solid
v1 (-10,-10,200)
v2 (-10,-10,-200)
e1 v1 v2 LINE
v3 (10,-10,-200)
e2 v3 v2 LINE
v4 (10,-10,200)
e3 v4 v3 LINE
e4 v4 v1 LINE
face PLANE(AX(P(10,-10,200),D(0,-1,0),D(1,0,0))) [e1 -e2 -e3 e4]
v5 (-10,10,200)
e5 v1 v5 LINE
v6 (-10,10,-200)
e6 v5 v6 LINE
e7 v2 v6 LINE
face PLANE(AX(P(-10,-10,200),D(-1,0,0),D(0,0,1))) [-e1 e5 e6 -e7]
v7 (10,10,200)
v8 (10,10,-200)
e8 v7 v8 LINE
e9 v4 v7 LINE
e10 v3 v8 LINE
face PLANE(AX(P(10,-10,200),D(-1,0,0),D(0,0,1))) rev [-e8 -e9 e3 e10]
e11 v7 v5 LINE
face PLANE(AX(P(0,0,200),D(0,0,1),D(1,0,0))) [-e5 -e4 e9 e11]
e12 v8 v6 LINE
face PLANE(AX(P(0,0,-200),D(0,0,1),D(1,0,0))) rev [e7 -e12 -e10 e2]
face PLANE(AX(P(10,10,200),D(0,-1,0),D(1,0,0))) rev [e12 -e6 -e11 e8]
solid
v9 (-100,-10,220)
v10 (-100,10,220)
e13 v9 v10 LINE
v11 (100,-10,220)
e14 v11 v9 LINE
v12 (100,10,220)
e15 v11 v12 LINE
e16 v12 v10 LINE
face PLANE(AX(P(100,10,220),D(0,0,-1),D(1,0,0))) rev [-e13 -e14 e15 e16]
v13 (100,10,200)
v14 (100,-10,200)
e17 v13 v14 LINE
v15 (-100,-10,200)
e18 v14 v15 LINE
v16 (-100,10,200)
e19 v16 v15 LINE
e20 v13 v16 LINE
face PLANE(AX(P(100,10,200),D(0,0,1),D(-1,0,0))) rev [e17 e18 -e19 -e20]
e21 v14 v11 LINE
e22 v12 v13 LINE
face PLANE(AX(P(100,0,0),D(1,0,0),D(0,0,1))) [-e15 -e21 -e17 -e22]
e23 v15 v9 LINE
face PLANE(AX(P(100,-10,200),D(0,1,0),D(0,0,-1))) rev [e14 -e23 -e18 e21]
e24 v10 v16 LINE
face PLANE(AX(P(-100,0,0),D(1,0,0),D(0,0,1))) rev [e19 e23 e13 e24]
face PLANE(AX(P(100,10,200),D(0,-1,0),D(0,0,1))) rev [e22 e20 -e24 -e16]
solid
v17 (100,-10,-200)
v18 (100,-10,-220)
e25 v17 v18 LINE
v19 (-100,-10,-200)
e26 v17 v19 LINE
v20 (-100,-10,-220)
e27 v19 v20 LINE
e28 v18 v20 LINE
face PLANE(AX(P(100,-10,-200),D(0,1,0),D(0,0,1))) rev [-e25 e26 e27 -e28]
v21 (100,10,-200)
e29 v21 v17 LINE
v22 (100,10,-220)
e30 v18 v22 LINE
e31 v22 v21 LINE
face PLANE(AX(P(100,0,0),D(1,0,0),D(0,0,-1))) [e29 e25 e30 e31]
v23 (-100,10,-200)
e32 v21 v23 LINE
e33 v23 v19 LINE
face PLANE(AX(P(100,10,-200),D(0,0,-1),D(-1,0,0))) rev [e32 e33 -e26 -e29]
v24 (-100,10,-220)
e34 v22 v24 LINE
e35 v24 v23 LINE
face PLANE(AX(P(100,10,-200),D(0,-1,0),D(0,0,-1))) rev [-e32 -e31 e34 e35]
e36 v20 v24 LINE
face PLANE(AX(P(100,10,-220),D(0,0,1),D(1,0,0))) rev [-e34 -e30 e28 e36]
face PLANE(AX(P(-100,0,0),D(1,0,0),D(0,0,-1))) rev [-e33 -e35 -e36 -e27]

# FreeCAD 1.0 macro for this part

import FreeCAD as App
import Part
import Sketcher
from FreeCAD import Vector
Q = App.Units.Quantity

doc = App.newDocument("Part")
body = doc.addObject("PartDesign::Body", "Body")

sketch1 = body.newObject("Sketcher::SketchObject", "Sketch")
sketch1.AttachmentSupport = (doc.getObject("XY_Plane"), [""])
sketch1.MapMode = "FlatFace"
sketch1.addGeometry(Part.LineSegment(Vector(-10, 10, 0), Vector(-10, -10, 0)), False)
sketch1.addGeometry(Part.LineSegment(Vector(-10, -10, 0), Vector(10, -10, 0)), False)
sketch1.addGeometry(Part.LineSegment(Vector(10, -10, 0), Vector(10, 10, 0)), False)
sketch1.addGeometry(Part.LineSegment(Vector(10, 10, 0), Vector(-10, 10, 0)), False)
sketch1.addConstraint(Sketcher.Constraint("Coincident", 0, 2, 1, 1))
sketch1.addConstraint(Sketcher.Constraint("Coincident", 1, 2, 2, 1))
sketch1.addConstraint(Sketcher.Constraint("Coincident", 2, 2, 3, 1))
sketch1.addConstraint(Sketcher.Constraint("Coincident", 3, 2, 0, 1))
sketch1.addConstraint(Sketcher.Constraint("Vertical", 0))
sketch1.addConstraint(Sketcher.Constraint("Horizontal", 1))
sketch1.addConstraint(Sketcher.Constraint("Vertical", 2))
sketch1.addConstraint(Sketcher.Constraint("Horizontal", 3))
sketch1.addConstraint(Sketcher.Constraint("Symmetric", 0, 2, 2, 2, -1, 1))
sketch1.addConstraint(Sketcher.Constraint("Equal", 3, 0))
sketch1.addConstraint(Sketcher.Constraint("DistanceX", 1, 1, 1, 2, Q("20 mm")))
pad1 = body.newObject("PartDesign::Pad", "Pad")
pad1.Profile = sketch1
pad1.Length = 400
pad1.Midplane = True
body2 = doc.addObject("PartDesign::Body", "Body001")

sketch2 = body2.newObject("Sketcher::SketchObject", "Sketch001")
sketch2.AttachmentSupport = (doc.getObject("YZ_Plane001"), [""])
sketch2.MapMode = "FlatFace"
sketch2.addGeometry(Part.LineSegment(Vector(10, -200, 0), Vector(-10, -200, 0)), False)
sketch2.addGeometry(Part.LineSegment(Vector(-10, -200, 0), Vector(-10, -220, 0)), False)
sketch2.addGeometry(Part.LineSegment(Vector(-10, -220, 0), Vector(10, -220, 0)), False)
sketch2.addGeometry(Part.LineSegment(Vector(10, -220, 0), Vector(10, -200, 0)), False)
sketch2.addConstraint(Sketcher.Constraint("Coincident", 0, 2, 1, 1))
sketch2.addConstraint(Sketcher.Constraint("Coincident", 1, 2, 2, 1))
sketch2.addConstraint(Sketcher.Constraint("Coincident", 2, 2, 3, 1))
sketch2.addConstraint(Sketcher.Constraint("Coincident", 3, 2, 0, 1))
sketch2.addConstraint(Sketcher.Constraint("Horizontal", 0))
sketch2.addConstraint(Sketcher.Constraint("Vertical", 1))
sketch2.addConstraint(Sketcher.Constraint("Horizontal", 2))
sketch2.addConstraint(Sketcher.Constraint("Vertical", 3))
sketch2.addConstraint(Sketcher.Constraint("Equal", 2, 1))
sketch2.addConstraint(Sketcher.Constraint("DistanceX", 0, 2, 0, 1, Q("20 mm")))
sketch2.addConstraint(Sketcher.Constraint("DistanceX", 0, 2, -1, 1, Q("10 mm")))
sketch2.addConstraint(Sketcher.Constraint("DistanceY", 0, 2, -1, 1, Q("200 mm")))
pad2 = body2.newObject("PartDesign::Pad", "Pad001")
pad2.Profile = sketch2
pad2.Length = 200
pad2.Midplane = True
body3 = doc.addObject("PartDesign::Body", "Body002")
doc.recompute()

mirroring = doc.addObject("Part::Mirroring", "Mirroring")
mirroring.Source = body2
mirroring.Base = Vector(0, 0, 0)
mirroring.Normal = Vector(0, 0, 1)
body3.BaseFeature = mirroring
doc.recompute()
mirroring.Visibility = False

doc.recompute()
